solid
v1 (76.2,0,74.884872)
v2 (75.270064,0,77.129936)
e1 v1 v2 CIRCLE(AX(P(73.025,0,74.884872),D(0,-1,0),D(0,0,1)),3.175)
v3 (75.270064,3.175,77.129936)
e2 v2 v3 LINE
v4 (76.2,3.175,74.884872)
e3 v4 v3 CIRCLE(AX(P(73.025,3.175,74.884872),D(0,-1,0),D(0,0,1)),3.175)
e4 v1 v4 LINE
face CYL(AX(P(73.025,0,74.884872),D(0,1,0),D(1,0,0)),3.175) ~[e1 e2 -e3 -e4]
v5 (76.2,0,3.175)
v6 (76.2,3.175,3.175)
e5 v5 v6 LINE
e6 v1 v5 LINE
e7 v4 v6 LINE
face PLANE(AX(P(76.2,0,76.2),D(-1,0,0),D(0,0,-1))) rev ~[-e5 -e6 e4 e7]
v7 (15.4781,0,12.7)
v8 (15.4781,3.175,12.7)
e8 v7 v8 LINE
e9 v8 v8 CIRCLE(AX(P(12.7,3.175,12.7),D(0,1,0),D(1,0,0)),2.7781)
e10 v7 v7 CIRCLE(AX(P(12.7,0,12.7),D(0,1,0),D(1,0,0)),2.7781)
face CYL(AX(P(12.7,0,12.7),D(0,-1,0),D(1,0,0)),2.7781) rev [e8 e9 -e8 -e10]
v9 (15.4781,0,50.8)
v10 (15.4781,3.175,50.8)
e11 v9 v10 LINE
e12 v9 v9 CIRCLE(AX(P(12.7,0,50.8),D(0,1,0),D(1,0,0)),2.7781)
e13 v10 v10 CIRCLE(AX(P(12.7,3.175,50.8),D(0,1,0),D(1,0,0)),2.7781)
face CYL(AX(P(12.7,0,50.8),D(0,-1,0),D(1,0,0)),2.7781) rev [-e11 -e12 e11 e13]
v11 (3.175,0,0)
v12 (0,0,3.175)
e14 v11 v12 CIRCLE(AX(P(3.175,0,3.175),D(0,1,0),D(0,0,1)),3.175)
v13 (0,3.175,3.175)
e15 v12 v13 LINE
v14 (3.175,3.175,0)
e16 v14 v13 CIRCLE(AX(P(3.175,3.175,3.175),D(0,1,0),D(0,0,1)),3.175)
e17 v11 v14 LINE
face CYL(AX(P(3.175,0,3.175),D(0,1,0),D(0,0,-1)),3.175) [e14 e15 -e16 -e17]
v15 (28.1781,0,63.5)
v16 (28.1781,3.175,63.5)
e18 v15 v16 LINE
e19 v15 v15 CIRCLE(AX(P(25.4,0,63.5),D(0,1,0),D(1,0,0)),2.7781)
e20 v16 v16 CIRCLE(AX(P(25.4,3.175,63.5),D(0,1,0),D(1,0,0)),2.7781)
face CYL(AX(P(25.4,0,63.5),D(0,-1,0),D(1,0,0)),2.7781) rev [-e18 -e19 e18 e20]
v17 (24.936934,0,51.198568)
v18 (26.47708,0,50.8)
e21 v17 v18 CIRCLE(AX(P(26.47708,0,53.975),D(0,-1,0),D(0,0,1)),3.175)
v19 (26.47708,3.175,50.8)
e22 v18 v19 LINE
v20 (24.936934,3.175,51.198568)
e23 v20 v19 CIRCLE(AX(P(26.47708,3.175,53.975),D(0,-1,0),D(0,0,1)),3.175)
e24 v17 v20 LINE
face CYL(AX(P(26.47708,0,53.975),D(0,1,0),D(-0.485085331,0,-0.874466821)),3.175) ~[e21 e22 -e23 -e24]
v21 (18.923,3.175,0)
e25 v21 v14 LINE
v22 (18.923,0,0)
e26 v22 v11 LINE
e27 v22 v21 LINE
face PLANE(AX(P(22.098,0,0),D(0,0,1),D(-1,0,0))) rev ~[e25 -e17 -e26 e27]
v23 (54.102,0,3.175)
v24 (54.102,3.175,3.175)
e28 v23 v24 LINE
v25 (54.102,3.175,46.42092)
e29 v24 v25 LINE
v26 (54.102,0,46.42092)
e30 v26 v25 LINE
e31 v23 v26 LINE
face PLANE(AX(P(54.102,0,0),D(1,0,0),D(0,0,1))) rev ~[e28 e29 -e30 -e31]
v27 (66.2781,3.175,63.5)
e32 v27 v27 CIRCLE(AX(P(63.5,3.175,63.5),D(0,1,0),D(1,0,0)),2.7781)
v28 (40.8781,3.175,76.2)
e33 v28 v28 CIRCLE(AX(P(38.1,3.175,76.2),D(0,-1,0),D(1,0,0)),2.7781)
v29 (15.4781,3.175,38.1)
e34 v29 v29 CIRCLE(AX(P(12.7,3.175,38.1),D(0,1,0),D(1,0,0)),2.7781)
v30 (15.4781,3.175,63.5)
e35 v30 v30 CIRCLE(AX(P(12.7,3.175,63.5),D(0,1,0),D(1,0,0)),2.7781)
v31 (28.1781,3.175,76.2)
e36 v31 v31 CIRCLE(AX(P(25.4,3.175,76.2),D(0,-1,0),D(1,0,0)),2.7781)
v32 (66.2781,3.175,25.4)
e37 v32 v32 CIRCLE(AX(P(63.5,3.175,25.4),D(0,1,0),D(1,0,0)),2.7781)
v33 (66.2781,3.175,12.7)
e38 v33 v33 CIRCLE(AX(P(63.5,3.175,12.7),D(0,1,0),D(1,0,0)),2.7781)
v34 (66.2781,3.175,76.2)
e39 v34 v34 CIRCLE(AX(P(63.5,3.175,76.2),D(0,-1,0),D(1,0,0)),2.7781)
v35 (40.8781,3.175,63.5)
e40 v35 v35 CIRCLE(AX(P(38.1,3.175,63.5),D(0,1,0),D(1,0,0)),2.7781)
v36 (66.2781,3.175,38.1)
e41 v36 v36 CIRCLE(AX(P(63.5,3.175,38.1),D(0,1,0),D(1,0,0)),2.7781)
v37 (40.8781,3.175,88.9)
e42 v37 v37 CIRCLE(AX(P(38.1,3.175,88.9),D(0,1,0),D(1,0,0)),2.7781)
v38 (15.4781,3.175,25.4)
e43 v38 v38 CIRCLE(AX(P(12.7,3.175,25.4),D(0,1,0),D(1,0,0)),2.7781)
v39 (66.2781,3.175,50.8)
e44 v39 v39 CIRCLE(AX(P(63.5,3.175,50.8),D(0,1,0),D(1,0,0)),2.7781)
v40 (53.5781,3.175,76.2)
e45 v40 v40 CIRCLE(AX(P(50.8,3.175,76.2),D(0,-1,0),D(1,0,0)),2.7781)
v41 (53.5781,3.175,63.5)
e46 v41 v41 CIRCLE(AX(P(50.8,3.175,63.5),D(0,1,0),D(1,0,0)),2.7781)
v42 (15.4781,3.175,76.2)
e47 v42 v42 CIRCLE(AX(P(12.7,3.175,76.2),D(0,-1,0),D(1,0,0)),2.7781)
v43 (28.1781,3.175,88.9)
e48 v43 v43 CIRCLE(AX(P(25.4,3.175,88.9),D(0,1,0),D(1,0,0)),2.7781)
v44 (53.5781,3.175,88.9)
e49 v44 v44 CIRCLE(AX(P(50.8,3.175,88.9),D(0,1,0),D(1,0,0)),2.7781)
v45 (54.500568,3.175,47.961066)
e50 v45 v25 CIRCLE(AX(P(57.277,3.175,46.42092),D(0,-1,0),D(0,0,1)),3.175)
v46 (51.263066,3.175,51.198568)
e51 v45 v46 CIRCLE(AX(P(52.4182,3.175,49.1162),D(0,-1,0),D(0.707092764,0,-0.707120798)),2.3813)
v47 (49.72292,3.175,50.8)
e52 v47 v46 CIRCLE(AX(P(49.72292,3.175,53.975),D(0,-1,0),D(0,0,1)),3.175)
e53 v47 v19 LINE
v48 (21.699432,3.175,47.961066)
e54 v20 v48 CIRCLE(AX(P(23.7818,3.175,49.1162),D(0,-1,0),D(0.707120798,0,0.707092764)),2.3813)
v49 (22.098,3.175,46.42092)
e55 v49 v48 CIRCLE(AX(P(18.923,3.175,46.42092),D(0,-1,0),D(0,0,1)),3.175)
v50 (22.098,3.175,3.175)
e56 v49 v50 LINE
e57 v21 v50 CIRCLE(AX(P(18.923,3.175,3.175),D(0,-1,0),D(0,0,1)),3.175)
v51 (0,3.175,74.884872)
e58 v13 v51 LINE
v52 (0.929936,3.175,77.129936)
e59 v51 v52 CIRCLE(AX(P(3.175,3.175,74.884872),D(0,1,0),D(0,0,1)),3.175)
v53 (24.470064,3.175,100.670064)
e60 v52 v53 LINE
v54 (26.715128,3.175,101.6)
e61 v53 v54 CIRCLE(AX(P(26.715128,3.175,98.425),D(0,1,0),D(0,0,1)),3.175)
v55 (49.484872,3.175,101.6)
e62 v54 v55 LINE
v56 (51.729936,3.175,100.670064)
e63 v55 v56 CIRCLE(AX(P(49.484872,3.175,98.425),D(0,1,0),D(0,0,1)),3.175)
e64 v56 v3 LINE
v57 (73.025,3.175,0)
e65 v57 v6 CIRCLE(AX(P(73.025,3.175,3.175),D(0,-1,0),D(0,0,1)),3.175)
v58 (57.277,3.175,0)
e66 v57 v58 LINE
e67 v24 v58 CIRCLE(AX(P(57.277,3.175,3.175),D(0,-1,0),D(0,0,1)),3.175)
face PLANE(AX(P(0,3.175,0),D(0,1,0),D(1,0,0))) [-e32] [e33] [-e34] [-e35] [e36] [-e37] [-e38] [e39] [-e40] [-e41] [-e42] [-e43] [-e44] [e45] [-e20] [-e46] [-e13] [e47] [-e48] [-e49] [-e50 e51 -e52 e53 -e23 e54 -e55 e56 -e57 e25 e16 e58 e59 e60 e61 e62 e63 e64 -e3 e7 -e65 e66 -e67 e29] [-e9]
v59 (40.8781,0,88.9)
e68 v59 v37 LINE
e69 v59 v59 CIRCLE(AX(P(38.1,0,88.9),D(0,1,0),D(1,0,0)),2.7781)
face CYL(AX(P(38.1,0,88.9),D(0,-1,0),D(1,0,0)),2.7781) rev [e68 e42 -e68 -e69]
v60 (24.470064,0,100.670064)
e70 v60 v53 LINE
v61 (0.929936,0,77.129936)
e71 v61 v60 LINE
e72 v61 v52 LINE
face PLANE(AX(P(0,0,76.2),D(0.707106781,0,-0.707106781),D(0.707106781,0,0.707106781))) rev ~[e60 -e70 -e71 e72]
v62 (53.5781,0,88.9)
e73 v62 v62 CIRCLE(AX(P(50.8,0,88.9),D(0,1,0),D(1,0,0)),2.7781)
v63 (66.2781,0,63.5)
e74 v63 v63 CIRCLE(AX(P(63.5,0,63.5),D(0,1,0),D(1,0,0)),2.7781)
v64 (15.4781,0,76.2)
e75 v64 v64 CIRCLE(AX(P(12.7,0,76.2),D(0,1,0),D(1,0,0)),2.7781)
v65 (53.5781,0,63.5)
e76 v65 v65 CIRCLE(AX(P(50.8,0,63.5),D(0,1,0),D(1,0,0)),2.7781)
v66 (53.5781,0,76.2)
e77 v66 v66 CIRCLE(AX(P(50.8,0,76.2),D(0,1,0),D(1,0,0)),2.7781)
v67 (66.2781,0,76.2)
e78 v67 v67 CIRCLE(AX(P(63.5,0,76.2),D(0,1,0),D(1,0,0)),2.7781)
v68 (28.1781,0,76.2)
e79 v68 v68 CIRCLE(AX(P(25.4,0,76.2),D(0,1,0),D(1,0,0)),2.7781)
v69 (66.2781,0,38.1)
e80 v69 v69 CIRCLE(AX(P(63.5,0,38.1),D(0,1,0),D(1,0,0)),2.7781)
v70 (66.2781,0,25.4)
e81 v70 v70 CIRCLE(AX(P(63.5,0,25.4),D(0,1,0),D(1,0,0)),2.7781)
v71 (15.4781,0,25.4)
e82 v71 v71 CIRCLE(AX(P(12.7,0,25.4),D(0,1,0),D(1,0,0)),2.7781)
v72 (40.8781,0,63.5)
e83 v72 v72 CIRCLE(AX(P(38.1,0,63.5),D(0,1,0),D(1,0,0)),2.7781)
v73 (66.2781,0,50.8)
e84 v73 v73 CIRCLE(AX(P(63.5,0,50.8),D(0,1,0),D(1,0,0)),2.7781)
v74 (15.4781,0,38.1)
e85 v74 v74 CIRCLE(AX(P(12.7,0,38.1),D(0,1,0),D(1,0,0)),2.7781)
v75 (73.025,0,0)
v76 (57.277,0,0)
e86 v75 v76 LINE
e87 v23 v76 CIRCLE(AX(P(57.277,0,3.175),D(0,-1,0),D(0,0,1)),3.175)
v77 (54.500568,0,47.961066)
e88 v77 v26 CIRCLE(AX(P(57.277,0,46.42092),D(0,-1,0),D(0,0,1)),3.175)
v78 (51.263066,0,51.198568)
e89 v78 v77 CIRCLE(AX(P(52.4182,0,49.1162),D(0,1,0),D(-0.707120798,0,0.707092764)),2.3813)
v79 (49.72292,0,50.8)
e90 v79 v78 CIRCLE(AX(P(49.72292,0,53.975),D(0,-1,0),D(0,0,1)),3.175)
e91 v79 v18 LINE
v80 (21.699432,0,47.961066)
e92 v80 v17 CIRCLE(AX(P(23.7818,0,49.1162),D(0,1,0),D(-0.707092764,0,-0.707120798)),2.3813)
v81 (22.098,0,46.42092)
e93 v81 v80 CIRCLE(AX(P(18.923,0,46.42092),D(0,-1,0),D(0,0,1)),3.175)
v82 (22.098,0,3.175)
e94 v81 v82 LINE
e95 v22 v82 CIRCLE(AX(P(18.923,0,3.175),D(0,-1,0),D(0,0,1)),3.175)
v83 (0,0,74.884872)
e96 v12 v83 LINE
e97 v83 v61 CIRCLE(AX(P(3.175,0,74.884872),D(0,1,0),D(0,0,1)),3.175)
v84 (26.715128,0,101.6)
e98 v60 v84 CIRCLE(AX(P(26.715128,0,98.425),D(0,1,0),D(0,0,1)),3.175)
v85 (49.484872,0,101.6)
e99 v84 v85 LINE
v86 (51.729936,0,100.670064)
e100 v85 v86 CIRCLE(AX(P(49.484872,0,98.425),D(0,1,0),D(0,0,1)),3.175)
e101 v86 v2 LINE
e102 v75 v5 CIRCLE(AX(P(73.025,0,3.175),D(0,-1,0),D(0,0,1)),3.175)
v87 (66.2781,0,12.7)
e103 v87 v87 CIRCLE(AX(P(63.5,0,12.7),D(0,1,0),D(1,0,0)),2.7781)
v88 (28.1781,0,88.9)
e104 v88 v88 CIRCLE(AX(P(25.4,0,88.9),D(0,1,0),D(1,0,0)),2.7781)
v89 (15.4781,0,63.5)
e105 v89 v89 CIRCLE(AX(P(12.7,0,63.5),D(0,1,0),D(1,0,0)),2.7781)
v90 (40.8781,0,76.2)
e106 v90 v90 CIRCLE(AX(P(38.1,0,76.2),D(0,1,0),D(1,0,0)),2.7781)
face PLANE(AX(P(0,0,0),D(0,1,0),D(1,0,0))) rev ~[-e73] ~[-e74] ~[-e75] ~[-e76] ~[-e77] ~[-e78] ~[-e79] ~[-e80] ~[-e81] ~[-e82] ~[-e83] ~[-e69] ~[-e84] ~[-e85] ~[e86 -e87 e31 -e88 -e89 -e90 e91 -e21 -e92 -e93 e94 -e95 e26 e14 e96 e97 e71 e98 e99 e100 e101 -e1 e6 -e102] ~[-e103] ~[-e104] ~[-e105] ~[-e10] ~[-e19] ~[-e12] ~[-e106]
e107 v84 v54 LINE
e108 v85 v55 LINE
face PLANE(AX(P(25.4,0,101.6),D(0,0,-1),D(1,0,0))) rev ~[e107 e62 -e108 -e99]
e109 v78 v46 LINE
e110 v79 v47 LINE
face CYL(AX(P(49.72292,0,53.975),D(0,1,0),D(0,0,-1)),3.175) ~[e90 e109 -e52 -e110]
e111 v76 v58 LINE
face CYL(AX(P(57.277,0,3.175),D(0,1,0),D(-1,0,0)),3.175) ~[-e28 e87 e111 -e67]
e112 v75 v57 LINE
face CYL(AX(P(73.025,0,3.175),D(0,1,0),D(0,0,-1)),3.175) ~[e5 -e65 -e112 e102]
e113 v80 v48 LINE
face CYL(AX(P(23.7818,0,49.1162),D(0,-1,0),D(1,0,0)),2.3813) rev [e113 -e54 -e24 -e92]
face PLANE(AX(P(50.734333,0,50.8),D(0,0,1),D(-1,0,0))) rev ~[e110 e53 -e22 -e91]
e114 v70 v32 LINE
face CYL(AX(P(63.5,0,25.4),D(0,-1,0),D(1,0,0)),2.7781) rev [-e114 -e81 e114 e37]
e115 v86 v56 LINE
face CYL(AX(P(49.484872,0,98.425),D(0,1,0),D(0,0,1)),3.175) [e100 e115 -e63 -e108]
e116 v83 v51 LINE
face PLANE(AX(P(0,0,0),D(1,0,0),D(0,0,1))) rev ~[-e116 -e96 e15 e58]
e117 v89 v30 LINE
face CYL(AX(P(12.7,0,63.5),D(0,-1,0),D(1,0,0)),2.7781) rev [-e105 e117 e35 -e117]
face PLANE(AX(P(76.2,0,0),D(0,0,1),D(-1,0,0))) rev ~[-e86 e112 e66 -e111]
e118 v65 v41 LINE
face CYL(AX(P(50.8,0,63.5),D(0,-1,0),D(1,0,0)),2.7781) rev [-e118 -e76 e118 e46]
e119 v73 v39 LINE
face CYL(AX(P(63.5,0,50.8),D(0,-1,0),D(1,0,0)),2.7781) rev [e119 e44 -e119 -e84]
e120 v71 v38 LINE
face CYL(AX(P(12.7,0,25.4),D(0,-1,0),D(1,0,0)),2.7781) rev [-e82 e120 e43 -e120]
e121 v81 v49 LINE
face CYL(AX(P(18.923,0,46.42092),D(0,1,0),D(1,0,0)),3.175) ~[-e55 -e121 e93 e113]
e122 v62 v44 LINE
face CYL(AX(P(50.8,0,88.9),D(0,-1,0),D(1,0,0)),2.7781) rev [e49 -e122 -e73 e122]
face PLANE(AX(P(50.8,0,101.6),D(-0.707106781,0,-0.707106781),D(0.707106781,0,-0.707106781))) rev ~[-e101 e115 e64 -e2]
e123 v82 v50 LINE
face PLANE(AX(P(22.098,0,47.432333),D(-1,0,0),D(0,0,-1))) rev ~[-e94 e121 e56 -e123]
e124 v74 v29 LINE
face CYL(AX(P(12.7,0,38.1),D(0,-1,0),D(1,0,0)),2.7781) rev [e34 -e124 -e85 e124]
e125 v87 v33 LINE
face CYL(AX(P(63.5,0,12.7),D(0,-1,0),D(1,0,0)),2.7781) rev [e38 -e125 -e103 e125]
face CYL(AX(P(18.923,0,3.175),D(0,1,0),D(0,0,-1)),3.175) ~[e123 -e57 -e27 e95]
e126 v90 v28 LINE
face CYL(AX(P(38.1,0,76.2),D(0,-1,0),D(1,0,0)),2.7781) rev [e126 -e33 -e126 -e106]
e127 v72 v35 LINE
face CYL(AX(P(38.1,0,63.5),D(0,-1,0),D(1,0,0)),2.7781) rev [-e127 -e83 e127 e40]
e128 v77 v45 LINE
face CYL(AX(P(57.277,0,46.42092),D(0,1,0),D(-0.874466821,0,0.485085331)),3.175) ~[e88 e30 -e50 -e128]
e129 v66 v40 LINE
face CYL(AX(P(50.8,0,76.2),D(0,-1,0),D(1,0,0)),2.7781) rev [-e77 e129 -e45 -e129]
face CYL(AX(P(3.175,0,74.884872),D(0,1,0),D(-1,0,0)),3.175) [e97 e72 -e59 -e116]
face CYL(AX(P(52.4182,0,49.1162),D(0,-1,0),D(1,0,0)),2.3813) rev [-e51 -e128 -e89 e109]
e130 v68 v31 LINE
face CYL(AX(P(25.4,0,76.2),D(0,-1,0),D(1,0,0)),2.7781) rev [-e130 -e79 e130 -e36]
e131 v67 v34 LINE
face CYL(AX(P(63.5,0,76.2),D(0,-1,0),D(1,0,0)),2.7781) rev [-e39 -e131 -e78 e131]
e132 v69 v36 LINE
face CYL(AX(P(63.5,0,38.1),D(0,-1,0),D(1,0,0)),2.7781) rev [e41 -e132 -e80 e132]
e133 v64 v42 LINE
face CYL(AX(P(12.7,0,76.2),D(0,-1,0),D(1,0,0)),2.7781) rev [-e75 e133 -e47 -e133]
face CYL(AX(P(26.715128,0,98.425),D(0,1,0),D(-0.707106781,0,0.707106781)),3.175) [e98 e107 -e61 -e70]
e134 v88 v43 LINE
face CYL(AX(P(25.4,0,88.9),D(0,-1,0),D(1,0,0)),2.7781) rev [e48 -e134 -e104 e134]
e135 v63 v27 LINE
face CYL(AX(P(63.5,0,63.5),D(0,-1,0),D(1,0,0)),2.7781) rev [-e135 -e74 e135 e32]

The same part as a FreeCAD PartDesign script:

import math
import FreeCAD as App
import Part
import Sketcher

V = App.Vector
Q = App.Units.Quantity


def edges_at(feature, points):
    """Names of the edges that pass closest to the given points."""
    edges = feature.Shape.Edges
    near = lambda p: min(range(len(edges)), key=lambda i: edges[i].distToShape(Part.Vertex(*p))[0])
    return sorted({f"Edge{near(p) + 1}" for p in points})

doc = App.newDocument("Part")
body = doc.addObject("PartDesign::Body", "Body")

# Sketch on XZ plane
sketch1 = doc.addObject("Sketcher::SketchObject", "Sketch")
body.addObject(sketch1)
sketch1.AttachmentSupport = (doc.XZ_Plane, [""])
sketch1.MapMode = "FlatFace"
sketch1.addGeometry([
    Part.LineSegment(V(22.1, 0, 0), V(0, 0, 0)),  # 0
    Part.LineSegment(V(0, 0, 0), V(0, 76.2, 0)),  # 1
    Part.LineSegment(V(0, 76.2, 0), V(25.4, 101.6, 0)),  # 2
    Part.LineSegment(V(25.4, 101.6, 0), V(50.8, 101.6, 0)),  # 3
    Part.LineSegment(V(50.8, 101.6, 0), V(76.2, 76.2, 0)),  # 4
    Part.LineSegment(V(76.2, 76.2, 0), V(76.2, 0, 0)),  # 5
    Part.LineSegment(V(76.2, 0, 0), V(54.1, 0, 0)),  # 6
    Part.LineSegment(V(54.1, 0, 0), V(54.1, 47.4, 0)),  # 7
    Part.ArcOfCircle(Part.Circle(V(52.4, 49.1, 0), V(0, 0, 1), 2.4), math.radians(-45), math.radians(135)),  # 8
    Part.LineSegment(V(50.7, 50.8, 0), V(25.5, 50.8, 0)),  # 9
    Part.ArcOfCircle(Part.Circle(V(23.8, 49.1, 0), V(0, 0, 1), 2.4), math.radians(45), math.radians(225)),  # 10
    Part.LineSegment(V(22.1, 47.4, 0), V(22.1, 0, 0)),  # 11
    Part.Circle(V(63.5, 76.2, 0), V(0, 0, 1), 2.8),  # 12
    Part.Circle(V(50.8, 76.2, 0), V(0, 0, 1), 2.8),  # 13
    Part.Circle(V(38.1, 76.2, 0), V(0, 0, 1), 2.8),  # 14
    Part.Circle(V(25.4, 76.2, 0), V(0, 0, 1), 2.8),  # 15
    Part.Circle(V(12.7, 76.2, 0), V(0, 0, 1), 2.8),  # 16
    Part.Circle(V(12.7, 63.5, 0), V(0, 0, 1), 2.8),  # 17
    Part.Circle(V(12.7, 50.8, 0), V(0, 0, 1), 2.8),  # 18
    Part.Circle(V(25.4, 63.5, 0), V(0, 0, 1), 2.8),  # 19
    Part.Circle(V(38.1, 63.5, 0), V(0, 0, 1), 2.8),  # 20
    Part.Circle(V(50.8, 63.5, 0), V(0, 0, 1), 2.8),  # 21
    Part.Circle(V(63.5, 63.5, 0), V(0, 0, 1), 2.8),  # 22
    Part.Circle(V(63.5, 50.8, 0), V(0, 0, 1), 2.8),  # 23
    Part.Circle(V(12.7, 38.1, 0), V(0, 0, 1), 2.8),  # 24
    Part.Circle(V(12.7, 25.4, 0), V(0, 0, 1), 2.8),  # 25
    Part.Circle(V(12.7, 12.7, 0), V(0, 0, 1), 2.8),  # 26
    Part.Circle(V(63.5, 38.1, 0), V(0, 0, 1), 2.8),  # 27
    Part.Circle(V(63.5, 25.4, 0), V(0, 0, 1), 2.8),  # 28
    Part.Circle(V(63.5, 12.7, 0), V(0, 0, 1), 2.8),  # 29
    Part.Circle(V(25.4, 88.9, 0), V(0, 0, 1), 2.8),  # 30
    Part.Circle(V(38.1, 88.9, 0), V(0, 0, 1), 2.8),  # 31
    Part.Circle(V(50.8, 88.9, 0), V(0, 0, 1), 2.8),  # 32
], False)
sketch1.addConstraint([
    Sketcher.Constraint("Coincident", 0, 2, 1, 1),
    Sketcher.Constraint("Coincident", 1, 2, 2, 1),
    Sketcher.Constraint("Coincident", 2, 2, 3, 1),
    Sketcher.Constraint("Coincident", 3, 2, 4, 1),
    Sketcher.Constraint("Coincident", 4, 2, 5, 1),
    Sketcher.Constraint("Coincident", 5, 2, 6, 1),
    Sketcher.Constraint("Coincident", 6, 2, 7, 1),
    Sketcher.Constraint("Coincident", 7, 2, 8, 1),
    Sketcher.Constraint("Coincident", 8, 2, 9, 1),
    Sketcher.Constraint("Coincident", 9, 2, 10, 1),
    Sketcher.Constraint("Coincident", 10, 2, 11, 1),
    Sketcher.Constraint("Coincident", 11, 2, 0, 1),
    Sketcher.Constraint("Horizontal", 0),
    Sketcher.Constraint("Vertical", 1),
    Sketcher.Constraint("Horizontal", 3),
    Sketcher.Constraint("Vertical", 5),
    Sketcher.Constraint("Horizontal", 6),
    Sketcher.Constraint("Vertical", 7),
    Sketcher.Constraint("Horizontal", 9),
    Sketcher.Constraint("Vertical", 11),
    Sketcher.Constraint("Coincident", 0, 2, -1, 1),
    Sketcher.Constraint("Equal", 8, 10),
    Sketcher.Constraint("Equal", 12, 13),
    Sketcher.Constraint("Equal", 13, 14),
    Sketcher.Constraint("Equal", 14, 15),
    Sketcher.Constraint("Equal", 15, 16),
    Sketcher.Constraint("Equal", 16, 17),
    Sketcher.Constraint("Equal", 17, 18),
    Sketcher.Constraint("Equal", 18, 19),
    Sketcher.Constraint("Equal", 19, 20),
    Sketcher.Constraint("Equal", 20, 21),
    Sketcher.Constraint("Equal", 21, 22),
    Sketcher.Constraint("Equal", 22, 23),
    Sketcher.Constraint("Equal", 23, 24),
    Sketcher.Constraint("Equal", 24, 25),
    Sketcher.Constraint("Equal", 25, 26),
    Sketcher.Constraint("Equal", 26, 27),
    Sketcher.Constraint("Equal", 27, 28),
    Sketcher.Constraint("Equal", 28, 29),
    Sketcher.Constraint("Equal", 29, 30),
    Sketcher.Constraint("Equal", 30, 31),
    Sketcher.Constraint("Equal", 31, 32),
    Sketcher.Constraint("PointOnObject", 5, 2, -1),
    Sketcher.Constraint("Perpendicular", 2, 4),
    Sketcher.Constraint("Horizontal", 8, 3, 10, 3),
    Sketcher.Constraint("Horizontal", 12, 3, 13, 3),
    Sketcher.Constraint("Horizontal", 13, 3, 14, 3),
    Sketcher.Constraint("Horizontal", 14, 3, 15, 3),
    Sketcher.Constraint("Horizontal", 15, 3, 16, 3),
    Sketcher.Constraint("Horizontal", 17, 3, 19, 3),
    Sketcher.Constraint("Horizontal", 19, 3, 20, 3),
    Sketcher.Constraint("Horizontal", 20, 3, 21, 3),
    Sketcher.Constraint("Horizontal", 21, 3, 22, 3),
    Sketcher.Constraint("Horizontal", 18, 3, 23, 3),
    Sketcher.Constraint("Horizontal", 24, 3, 27, 3),
    Sketcher.Constraint("Horizontal", 25, 3, 28, 3),
    Sketcher.Constraint("Horizontal", 26, 3, 29, 3),
    Sketcher.Constraint("Horizontal", 30, 3, 31, 3),
    Sketcher.Constraint("Horizontal", 31, 3, 32, 3),
    Sketcher.Constraint("Horizontal", 16, 3, 1, 2),
    Sketcher.Constraint("Horizontal", 1, 2, 4, 2),
    Sketcher.Constraint("Horizontal", 23, 3, 8, 2),
    Sketcher.Constraint("Horizontal", 7, 2, 10, 2),
    Sketcher.Constraint("Vertical", 16, 3, 17, 3),
    Sketcher.Constraint("Vertical", 17, 3, 18, 3),
    Sketcher.Constraint("Vertical", 15, 3, 19, 3),
    Sketcher.Constraint("Vertical", 14, 3, 20, 3),
    Sketcher.Constraint("Vertical", 13, 3, 21, 3),
    Sketcher.Constraint("Vertical", 12, 3, 22, 3),
    Sketcher.Constraint("Vertical", 22, 3, 23, 3),
    Sketcher.Constraint("Vertical", 18, 3, 24, 3),
    Sketcher.Constraint("Vertical", 24, 3, 25, 3),
    Sketcher.Constraint("Vertical", 25, 3, 26, 3),
    Sketcher.Constraint("Vertical", 23, 3, 27, 3),
    Sketcher.Constraint("Vertical", 27, 3, 28, 3),
    Sketcher.Constraint("Vertical", 28, 3, 29, 3),
    Sketcher.Constraint("Vertical", 19, 3, 30, 3),
    Sketcher.Constraint("Vertical", 20, 3, 31, 3),
    Sketcher.Constraint("Vertical", 21, 3, 32, 3),
    Sketcher.Constraint("Vertical", 30, 3, 2, 2),
    Sketcher.Constraint("Vertical", 32, 3, 3, 2),
    Sketcher.Constraint("Equal", 0, 6),
    Sketcher.Constraint("Equal", 2, 4),
    Sketcher.Constraint("DistanceX", 3, 1, 3, 2, Q("1 in")),
    Sketcher.Constraint("DistanceY", 1, 1, 1, 2, Q("3 in")),
    Sketcher.Constraint("Diameter", 12, Q("0.218748 in")),
    Sketcher.Constraint("DistanceX", -1, 1, 13, 3, Q("2 in")),
    Sketcher.Constraint("DistanceY", -1, 1, 18, 3, Q("2 in")),
    Sketcher.Constraint("DistanceY", -1, 1, 25, 3, Q("1 in")),
    Sketcher.Constraint("Radius", 8, Q("0.093752 in")),
    Sketcher.Constraint("DistanceX", 14, 3, 12, 3, Q("1 in")),
    Sketcher.Constraint("DistanceX", 16, 3, 14, 3, Q("1 in")),
    Sketcher.Constraint("DistanceY", 24, 3, 17, 3, Q("1 in")),
    Sketcher.Constraint("DistanceY", 26, 3, 24, 3, Q("1 in")),
    Sketcher.Constraint("DistanceY", 19, 3, 30, 3, Q("1 in")),
    Sketcher.Constraint("DistanceX", -1, 1, 16, 3, Q("0.5 in")),
    Sketcher.Constraint("DistanceY", -1, 1, 26, 3, Q("0.5 in")),
    Sketcher.Constraint("DistanceX", 11, 2, 6, 2, Q("1.26 in")),
    Sketcher.Constraint("DistanceX", 9, 2, 9, 1, 25.2687),
    Sketcher.Constraint("DistanceX", -1, 1, 8, 3, Q("2.0637 in")),
])
pad1 = doc.addObject("PartDesign::Pad", "Pad")
body.addObject(pad1)
pad1.Profile = sketch1
pad1.Length = Q("0.125 in")
pad1.Reversed = True
doc.recompute()

fillet = doc.addObject("PartDesign::Fillet", "Fillet")
body.addObject(fillet)
fillet.Base = (pad1, edges_at(pad1, [
    (0, 1.587, 0),
    (22.098, 1.587, 0),
    (54.102, 1.587, 0),
    (76.2, 1.587, 0),
    (0, 1.587, 76.2),
    (25.4, 1.587, 101.6),
    (50.8, 1.587, 101.6),
    (76.2, 1.587, 76.2),
]))
fillet.Radius = Q("0.125 in")
doc.recompute()

fillet2 = doc.addObject("PartDesign::Fillet", "Fillet001")
body.addObject(fillet2)
fillet2.Base = (fillet, edges_at(fillet, [
    (25.466, 1.587, 50.8),
    (22.098, 1.587, 47.432),
    (50.734, 1.587, 50.8),
    (54.102, 1.587, 47.432),
]))
fillet2.Radius = Q("0.125 in")

doc.recompute()
